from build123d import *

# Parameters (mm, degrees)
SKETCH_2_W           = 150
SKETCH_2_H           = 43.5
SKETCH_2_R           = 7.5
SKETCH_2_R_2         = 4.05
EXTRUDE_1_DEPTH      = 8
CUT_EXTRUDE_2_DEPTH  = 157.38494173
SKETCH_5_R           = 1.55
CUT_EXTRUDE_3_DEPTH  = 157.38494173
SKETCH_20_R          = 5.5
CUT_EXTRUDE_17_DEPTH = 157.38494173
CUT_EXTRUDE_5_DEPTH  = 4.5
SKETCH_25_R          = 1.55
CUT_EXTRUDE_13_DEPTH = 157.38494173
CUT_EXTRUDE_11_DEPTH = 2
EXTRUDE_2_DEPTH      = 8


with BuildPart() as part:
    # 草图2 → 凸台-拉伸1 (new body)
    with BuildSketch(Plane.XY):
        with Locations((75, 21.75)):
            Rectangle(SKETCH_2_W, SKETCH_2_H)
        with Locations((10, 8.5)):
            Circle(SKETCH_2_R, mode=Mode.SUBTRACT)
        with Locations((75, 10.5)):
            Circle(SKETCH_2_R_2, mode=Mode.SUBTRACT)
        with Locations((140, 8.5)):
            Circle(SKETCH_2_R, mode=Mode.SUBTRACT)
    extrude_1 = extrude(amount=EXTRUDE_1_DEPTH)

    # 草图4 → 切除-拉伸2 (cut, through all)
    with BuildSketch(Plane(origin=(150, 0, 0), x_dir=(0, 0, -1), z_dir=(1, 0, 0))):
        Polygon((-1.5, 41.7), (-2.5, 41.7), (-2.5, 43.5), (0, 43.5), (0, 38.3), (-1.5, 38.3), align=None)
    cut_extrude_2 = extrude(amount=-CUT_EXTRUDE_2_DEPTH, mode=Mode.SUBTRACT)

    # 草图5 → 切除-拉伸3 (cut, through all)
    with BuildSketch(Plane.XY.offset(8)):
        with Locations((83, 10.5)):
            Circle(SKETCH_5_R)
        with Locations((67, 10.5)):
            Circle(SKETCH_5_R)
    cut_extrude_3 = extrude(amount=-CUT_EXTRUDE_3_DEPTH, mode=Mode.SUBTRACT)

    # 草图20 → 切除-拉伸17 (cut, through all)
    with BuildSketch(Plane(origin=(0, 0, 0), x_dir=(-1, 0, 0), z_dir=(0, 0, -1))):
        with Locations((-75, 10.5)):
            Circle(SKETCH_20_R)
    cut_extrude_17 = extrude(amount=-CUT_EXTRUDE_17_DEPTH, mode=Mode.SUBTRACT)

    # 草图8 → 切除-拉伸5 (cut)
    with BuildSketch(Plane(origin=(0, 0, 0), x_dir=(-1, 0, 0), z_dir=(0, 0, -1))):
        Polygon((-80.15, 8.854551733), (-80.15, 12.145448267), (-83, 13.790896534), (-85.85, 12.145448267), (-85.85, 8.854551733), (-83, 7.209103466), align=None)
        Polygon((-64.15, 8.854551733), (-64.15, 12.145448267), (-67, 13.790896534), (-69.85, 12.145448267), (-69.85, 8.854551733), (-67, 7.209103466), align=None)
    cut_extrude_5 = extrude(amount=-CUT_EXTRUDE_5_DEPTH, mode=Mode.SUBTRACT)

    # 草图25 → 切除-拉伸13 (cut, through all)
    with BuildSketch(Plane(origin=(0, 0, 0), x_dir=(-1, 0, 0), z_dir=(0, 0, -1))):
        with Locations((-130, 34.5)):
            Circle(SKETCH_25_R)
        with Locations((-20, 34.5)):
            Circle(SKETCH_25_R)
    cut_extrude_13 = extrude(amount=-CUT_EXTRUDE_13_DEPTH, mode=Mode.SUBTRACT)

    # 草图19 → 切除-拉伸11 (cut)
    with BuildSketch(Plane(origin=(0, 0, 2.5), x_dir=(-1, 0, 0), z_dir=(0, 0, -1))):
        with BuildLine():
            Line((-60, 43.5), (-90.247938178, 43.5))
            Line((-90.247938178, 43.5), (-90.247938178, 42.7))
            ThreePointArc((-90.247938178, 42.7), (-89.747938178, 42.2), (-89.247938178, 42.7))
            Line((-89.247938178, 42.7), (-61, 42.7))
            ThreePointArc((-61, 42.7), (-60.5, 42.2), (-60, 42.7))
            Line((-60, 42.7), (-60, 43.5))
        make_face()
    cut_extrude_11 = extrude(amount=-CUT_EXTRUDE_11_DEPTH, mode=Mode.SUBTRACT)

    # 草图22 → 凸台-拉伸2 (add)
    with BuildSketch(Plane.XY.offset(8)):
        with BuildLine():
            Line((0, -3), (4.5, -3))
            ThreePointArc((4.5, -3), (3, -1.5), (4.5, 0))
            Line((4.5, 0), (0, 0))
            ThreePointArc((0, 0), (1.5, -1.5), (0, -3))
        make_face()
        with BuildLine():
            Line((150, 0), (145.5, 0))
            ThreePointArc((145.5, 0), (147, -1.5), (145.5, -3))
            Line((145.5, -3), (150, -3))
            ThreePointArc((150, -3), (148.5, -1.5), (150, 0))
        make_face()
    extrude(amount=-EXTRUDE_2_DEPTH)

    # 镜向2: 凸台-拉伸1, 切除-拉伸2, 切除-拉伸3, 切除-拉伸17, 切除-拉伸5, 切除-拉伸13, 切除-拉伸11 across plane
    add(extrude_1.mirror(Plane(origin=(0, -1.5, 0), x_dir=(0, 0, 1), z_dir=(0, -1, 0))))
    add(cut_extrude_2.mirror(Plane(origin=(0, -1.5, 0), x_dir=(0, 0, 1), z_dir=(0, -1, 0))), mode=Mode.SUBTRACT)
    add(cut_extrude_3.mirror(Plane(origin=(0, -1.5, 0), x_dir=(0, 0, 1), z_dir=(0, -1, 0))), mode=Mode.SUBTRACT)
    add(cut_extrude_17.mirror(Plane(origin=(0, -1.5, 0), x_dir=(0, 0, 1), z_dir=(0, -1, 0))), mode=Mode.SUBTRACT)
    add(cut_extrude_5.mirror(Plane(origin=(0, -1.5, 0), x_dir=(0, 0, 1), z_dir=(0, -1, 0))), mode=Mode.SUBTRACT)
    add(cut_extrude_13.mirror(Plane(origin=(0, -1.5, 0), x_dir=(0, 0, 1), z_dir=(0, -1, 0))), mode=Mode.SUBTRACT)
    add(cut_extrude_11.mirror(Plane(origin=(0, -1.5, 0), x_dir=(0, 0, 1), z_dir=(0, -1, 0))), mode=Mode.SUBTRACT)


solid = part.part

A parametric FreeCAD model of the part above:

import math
import FreeCAD as App
import Part
import Sketcher
from FreeCAD import Vector
Q = App.Units.Quantity

doc = App.newDocument("Part")
body = doc.addObject("PartDesign::Body", "Body")

sketch1 = doc.addObject("Sketcher::SketchObject", "Sketch")
body.addObject(sketch1)
sketch1.AttachmentSupport = (doc.XY_Plane, [""])
sketch1.MapMode = "FlatFace"
sketch1.addGeometry([
    Part.LineSegment(Vector(0, 43.5, 0), Vector(0, 0, 0)),
    Part.LineSegment(Vector(0, 0, 0), Vector(150, 0, 0)),
    Part.LineSegment(Vector(150, 0, 0), Vector(150, 43.5, 0)),
    Part.LineSegment(Vector(150, 43.5, 0), Vector(0, 43.5, 0)),
    Part.Circle(Vector(10, 8.5, 0), Vector(0, 0, 1), 7.5),
    Part.Circle(Vector(75, 10.5, 0), Vector(0, 0, 1), 4.05),
    Part.Circle(Vector(140, 8.5, 0), Vector(0, 0, 1), 7.5),
], False)
sketch1.addConstraint([
    Sketcher.Constraint("Coincident", 0, 2, 1, 1),
    Sketcher.Constraint("Coincident", 1, 2, 2, 1),
    Sketcher.Constraint("Coincident", 2, 2, 3, 1),
    Sketcher.Constraint("Coincident", 3, 2, 0, 1),
    Sketcher.Constraint("Vertical", 0),
    Sketcher.Constraint("Horizontal", 1),
    Sketcher.Constraint("Vertical", 2),
    Sketcher.Constraint("Horizontal", 3),
    Sketcher.Constraint("Coincident", 0, 2, -1, 1),
    Sketcher.Constraint("Equal", 4, 6),
    Sketcher.Constraint("Horizontal", 4, 3, 6, 3),
    Sketcher.Constraint("Diameter", 4, 15.0),
    Sketcher.Constraint("Diameter", 5, 8.1),
    Sketcher.Constraint("DistanceX", 1, 1, 1, 2, 150.0),
    Sketcher.Constraint("DistanceY", 0, 2, 0, 1, 43.5),
    Sketcher.Constraint("DistanceX", -1, 1, 4, 3, 10.0),
    Sketcher.Constraint("DistanceX", -1, 1, 5, 3, 75.0),
    Sketcher.Constraint("DistanceX", -1, 1, 6, 3, 140.0),
    Sketcher.Constraint("DistanceY", 4, 3, 5, 3, 2.0),
    Sketcher.Constraint("DistanceY", 6, 3, 2, 2, 35.0),
])
pad1 = doc.addObject("PartDesign::Pad", "Pad")
body.addObject(pad1)
pad1.Profile = sketch1
pad1.Length = 8

sketch2 = doc.addObject("Sketcher::SketchObject", "Sketch001")
body.addObject(sketch2)
sketch2.AttachmentSupport = (doc.YZ_Plane, [""])
sketch2.MapMode = "FlatFace"
sketch2.AttachmentOffset = App.Placement(Vector(0, 0, 150), App.Rotation())
sketch2.addGeometry([
    Part.LineSegment(Vector(41.7, 2.5, 0), Vector(41.7, 1.5, 0)),
    Part.LineSegment(Vector(41.7, 1.5, 0), Vector(38.3, 1.5, 0)),
    Part.LineSegment(Vector(38.3, 1.5, 0), Vector(38.3, 0, 0)),
    Part.LineSegment(Vector(38.3, 0, 0), Vector(43.5, 0, 0)),
    Part.LineSegment(Vector(43.5, 0, 0), Vector(43.5, 2.5, 0)),
    Part.LineSegment(Vector(43.5, 2.5, 0), Vector(41.7, 2.5, 0)),
], False)
sketch2.addConstraint([
    Sketcher.Constraint("Coincident", 0, 2, 1, 1),
    Sketcher.Constraint("Coincident", 1, 2, 2, 1),
    Sketcher.Constraint("Coincident", 2, 2, 3, 1),
    Sketcher.Constraint("Coincident", 3, 2, 4, 1),
    Sketcher.Constraint("Coincident", 4, 2, 5, 1),
    Sketcher.Constraint("Coincident", 5, 2, 0, 1),
    Sketcher.Constraint("Vertical", 0),
    Sketcher.Constraint("Horizontal", 1),
    Sketcher.Constraint("Vertical", 2),
    Sketcher.Constraint("Horizontal", 3),
    Sketcher.Constraint("Vertical", 4),
    Sketcher.Constraint("Horizontal", 5),
    Sketcher.Constraint("PointOnObject", 2, 2, -1),
    Sketcher.Constraint("DistanceY", 0, 2, 0, 1, 1.0),
    Sketcher.Constraint("DistanceX", 1, 2, 1, 1, 3.4),
    Sketcher.Constraint("DistanceX", 3, 1, 3, 2, 5.2),
    Sketcher.Constraint("DistanceY", 2, 2, 2, 1, 1.5),
    Sketcher.Constraint("DistanceX", -1, 1, 0, 2, 41.7),
])
pocket1 = doc.addObject("PartDesign::Pocket", "Pocket")
body.addObject(pocket1)
pocket1.Profile = sketch2
pocket1.Type = "ThroughAll"

sketch3 = doc.addObject("Sketcher::SketchObject", "Sketch002")
body.addObject(sketch3)
sketch3.AttachmentSupport = (doc.XY_Plane, [""])
sketch3.MapMode = "FlatFace"
sketch3.AttachmentOffset = App.Placement(Vector(0, 0, 8), App.Rotation())
sketch3.addGeometry([
    Part.Circle(Vector(83, 10.5, 0), Vector(0, 0, 1), 1.55),
    Part.Circle(Vector(67, 10.5, 0), Vector(0, 0, 1), 1.55),
], False)
sketch3.addConstraint([
    Sketcher.Constraint("Equal", 0, 1),
    Sketcher.Constraint("Horizontal", 0, 3, 1, 3),
    Sketcher.Constraint("Diameter", 0, 3.1),
    Sketcher.Constraint("DistanceX", -1, 1, 0, 3, 83.0),
    Sketcher.Constraint("DistanceX", -1, 1, 1, 3, 67.0),
    Sketcher.Constraint("DistanceY", -1, 1, 0, 3, 10.5),
])
pocket2 = doc.addObject("PartDesign::Pocket", "Pocket001")
body.addObject(pocket2)
pocket2.Profile = sketch3
pocket2.Type = "ThroughAll"

sketch4 = doc.addObject("Sketcher::SketchObject", "Sketch003")
body.addObject(sketch4)
sketch4.AttachmentSupport = (doc.XY_Plane, [""])
sketch4.MapMode = "FlatFace"
sketch4.addGeometry(Part.Circle(Vector(75, 10.5, 0), Vector(0, 0, 1), 5.5), False)
sketch4.addConstraint([
    Sketcher.Constraint("Diameter", 0, 11.0),
    Sketcher.Constraint("DistanceX", -1, 1, 0, 3, 75.0),
    Sketcher.Constraint("DistanceY", -1, 1, 0, 3, 10.5),
])
pocket3 = doc.addObject("PartDesign::Pocket", "Pocket002")
body.addObject(pocket3)
pocket3.Profile = sketch4
pocket3.Type = "ThroughAll"
pocket3.Reversed = True

sketch5 = doc.addObject("Sketcher::SketchObject", "Sketch004")
body.addObject(sketch5)
sketch5.AttachmentSupport = (doc.XY_Plane, [""])
sketch5.MapMode = "FlatFace"
sketch5.addGeometry([
    Part.LineSegment(Vector(80.15, 8.854552, 0), Vector(80.15, 12.145448, 0)),
    Part.LineSegment(Vector(80.15, 12.145448, 0), Vector(83, 13.790897, 0)),
    Part.LineSegment(Vector(83, 13.790897, 0), Vector(85.85, 12.145448, 0)),
    Part.LineSegment(Vector(85.85, 12.145448, 0), Vector(85.85, 8.854552, 0)),
    Part.LineSegment(Vector(85.85, 8.854552, 0), Vector(83, 7.209103, 0)),
    Part.LineSegment(Vector(83, 7.209103, 0), Vector(80.15, 8.854552, 0)),
    Part.LineSegment(Vector(64.15, 8.854552, 0), Vector(64.15, 12.145448, 0)),
    Part.LineSegment(Vector(64.15, 12.145448, 0), Vector(67, 13.790897, 0)),
    Part.LineSegment(Vector(67, 13.790897, 0), Vector(69.85, 12.145448, 0)),
    Part.LineSegment(Vector(69.85, 12.145448, 0), Vector(69.85, 8.854552, 0)),
    Part.LineSegment(Vector(69.85, 8.854552, 0), Vector(67, 7.209103, 0)),
    Part.LineSegment(Vector(67, 7.209103, 0), Vector(64.15, 8.854552, 0)),
], False)
sketch5.addConstraint([
    Sketcher.Constraint("Coincident", 0, 2, 1, 1),
    Sketcher.Constraint("Coincident", 1, 2, 2, 1),
    Sketcher.Constraint("Coincident", 2, 2, 3, 1),
    Sketcher.Constraint("Coincident", 3, 2, 4, 1),
    Sketcher.Constraint("Coincident", 4, 2, 5, 1),
    Sketcher.Constraint("Coincident", 5, 2, 0, 1),
    Sketcher.Constraint("Coincident", 6, 2, 7, 1),
    Sketcher.Constraint("Coincident", 7, 2, 8, 1),
    Sketcher.Constraint("Coincident", 8, 2, 9, 1),
    Sketcher.Constraint("Coincident", 9, 2, 10, 1),
    Sketcher.Constraint("Coincident", 10, 2, 11, 1),
    Sketcher.Constraint("Coincident", 11, 2, 6, 1),
    Sketcher.Constraint("Vertical", 0),
    Sketcher.Constraint("Vertical", 3),
    Sketcher.Constraint("Vertical", 6),
    Sketcher.Constraint("Vertical", 9),
    Sketcher.Constraint("Parallel", 1, 4),
    Sketcher.Constraint("Parallel", 2, 5),
    Sketcher.Constraint("Parallel", 4, 7),
    Sketcher.Constraint("Parallel", 5, 8),
    Sketcher.Constraint("Parallel", 7, 10),
    Sketcher.Constraint("Parallel", 8, 11),
    Sketcher.Constraint("Horizontal", 0, 2, 2, 2),
    Sketcher.Constraint("Horizontal", 3, 2, 5, 2),
    Sketcher.Constraint("Horizontal", 2, 2, 6, 2),
    Sketcher.Constraint("Horizontal", 1, 2, 7, 2),
    Sketcher.Constraint("Horizontal", 6, 2, 8, 2),
    Sketcher.Constraint("Horizontal", 5, 2, 9, 2),
    Sketcher.Constraint("Horizontal", 4, 2, 10, 2),
    Sketcher.Constraint("Vertical", 1, 2, 4, 2),
    Sketcher.Constraint("Angle", 1, Q("30 deg")),
    Sketcher.Constraint("DistanceX", -1, 1, 1, 2, 83.0),
    Sketcher.Constraint("DistanceX", -1, 1, 7, 2, 67.0),
    Sketcher.Constraint("DistanceX", 0, 2, 2, 2, 5.7),
    Sketcher.Constraint("DistanceY", 0, 1, 0, 2, 3.290897),
    Sketcher.Constraint("DistanceY", -1, 1, 0, 2, 12.145448),
])
pocket4 = doc.addObject("PartDesign::Pocket", "Pocket003")
body.addObject(pocket4)
pocket4.Profile = sketch5
pocket4.Length = 4.5
pocket4.Reversed = True

sketch6 = doc.addObject("Sketcher::SketchObject", "Sketch005")
body.addObject(sketch6)
sketch6.AttachmentSupport = (doc.XY_Plane, [""])
sketch6.MapMode = "FlatFace"
sketch6.addGeometry([
    Part.Circle(Vector(130, 34.5, 0), Vector(0, 0, 1), 1.55),
    Part.Circle(Vector(20, 34.5, 0), Vector(0, 0, 1), 1.55),
], False)
sketch6.addConstraint([
    Sketcher.Constraint("Equal", 0, 1),
    Sketcher.Constraint("Horizontal", 0, 3, 1, 3),
    Sketcher.Constraint("Diameter", 0, 3.1),
    Sketcher.Constraint("DistanceX", -1, 1, 0, 3, 130.0),
    Sketcher.Constraint("DistanceX", -1, 1, 1, 3, 20.0),
    Sketcher.Constraint("DistanceY", -1, 1, 0, 3, 34.5),
])
pocket5 = doc.addObject("PartDesign::Pocket", "Pocket004")
body.addObject(pocket5)
pocket5.Profile = sketch6
pocket5.Type = "ThroughAll"
pocket5.Reversed = True

sketch7 = doc.addObject("Sketcher::SketchObject", "Sketch006")
body.addObject(sketch7)
sketch7.AttachmentSupport = (doc.XY_Plane, [""])
sketch7.MapMode = "FlatFace"
sketch7.AttachmentOffset = App.Placement(Vector(0, 0, 2.5), App.Rotation())
sketch7.addGeometry([
    Part.LineSegment(Vector(60, 43.5, 0), Vector(90.247938, 43.5, 0)),
    Part.LineSegment(Vector(90.247938, 43.5, 0), Vector(90.247938, 42.7, 0)),
    Part.ArcOfCircle(Part.Circle(Vector(89.747938, 42.7, 0), Vector(0, 0, 1), 0.5), math.radians(180), math.radians(360)),
    Part.LineSegment(Vector(89.247938, 42.7, 0), Vector(61, 42.7, 0)),
    Part.ArcOfCircle(Part.Circle(Vector(60.5, 42.7, 0), Vector(0, 0, 1), 0.5), math.radians(180), math.radians(360)),
    Part.LineSegment(Vector(60, 42.7, 0), Vector(60, 43.5, 0)),
], False)
sketch7.addConstraint([
    Sketcher.Constraint("Coincident", 0, 2, 1, 1),
    Sketcher.Constraint("Tangent", 1, 2, 2, 2),
    Sketcher.Constraint("Coincident", 2, 1, 3, 1),
    Sketcher.Constraint("Coincident", 3, 2, 4, 2),
    Sketcher.Constraint("Tangent", 4, 1, 5, 1),
    Sketcher.Constraint("Coincident", 5, 2, 0, 1),
    Sketcher.Constraint("Horizontal", 0),
    Sketcher.Constraint("Vertical", 1),
    Sketcher.Constraint("Horizontal", 3),
    Sketcher.Constraint("Vertical", 5),
    Sketcher.Constraint("Equal", 2, 4),
    Sketcher.Constraint("Horizontal", 2, 3, 4, 3),
    Sketcher.Constraint("Horizontal", 1, 2, 2, 1),
    Sketcher.Constraint("Radius", 2, 0.5),
    Sketcher.Constraint("DistanceY", 1, 2, 1, 1, 0.8),
    Sketcher.Constraint("DistanceX", -1, 1, 3, 2, 61.0),
    Sketcher.Constraint("DistanceY", -1, 1, 2, 3, 42.7),
    Sketcher.Constraint("DistanceX", 0, 1, 0, 2, 30.247938),
])
pocket6 = doc.addObject("PartDesign::Pocket", "Pocket005")
body.addObject(pocket6)
pocket6.Profile = sketch7
pocket6.Length = 2
pocket6.Reversed = True

sketch8 = doc.addObject("Sketcher::SketchObject", "Sketch007")
body.addObject(sketch8)
sketch8.AttachmentSupport = (doc.XY_Plane, [""])
sketch8.MapMode = "FlatFace"
sketch8.AttachmentOffset = App.Placement(Vector(0, 0, 8), App.Rotation())
sketch8.addGeometry([
    Part.LineSegment(Vector(0, -3, 0), Vector(4.5, -3, 0)),
    Part.ArcOfCircle(Part.Circle(Vector(4.5, -1.5, 0), Vector(0, 0, 1), 1.5), math.radians(90), math.radians(270)),
    Part.LineSegment(Vector(4.5, 0, 0), Vector(0, 0, 0)),
    Part.ArcOfCircle(Part.Circle(Vector(0, -1.5, 0), Vector(0, 0, 1), 1.5), math.radians(-90), math.radians(90)),
    Part.LineSegment(Vector(150, 0, 0), Vector(145.5, 0, 0)),
    Part.ArcOfCircle(Part.Circle(Vector(145.5, -1.5, 0), Vector(0, 0, 1), 1.5), math.radians(-90), math.radians(90)),
    Part.LineSegment(Vector(145.5, -3, 0), Vector(150, -3, 0)),
    Part.ArcOfCircle(Part.Circle(Vector(150, -1.5, 0), Vector(0, 0, 1), 1.5), math.radians(90), math.radians(270)),
], False)
sketch8.addConstraint([
    Sketcher.Constraint("Tangent", 0, 2, 1, 2),
    Sketcher.Constraint("Tangent", 1, 1, 2, 1),
    Sketcher.Constraint("Tangent", 2, 2, 3, 2),
    Sketcher.Constraint("Tangent", 3, 1, 0, 1),
    Sketcher.Constraint("Tangent", 4, 2, 5, 2),
    Sketcher.Constraint("Tangent", 5, 1, 6, 1),
    Sketcher.Constraint("Tangent", 6, 2, 7, 2),
    Sketcher.Constraint("Tangent", 7, 1, 4, 1),
    Sketcher.Constraint("Horizontal", 0),
    Sketcher.Constraint("Horizontal", 2),
    Sketcher.Constraint("Horizontal", 4),
    Sketcher.Constraint("Horizontal", 6),
    Sketcher.Constraint("Coincident", 2, 2, -1, 1),
    Sketcher.Constraint("Equal", 3, 5),
    Sketcher.Constraint("PointOnObject", 4, 2, -1),
    Sketcher.Constraint("Equal", 2, 4),
    Sketcher.Constraint("Radius", 1, 1.5),
    Sketcher.Constraint("DistanceX", 0, 1, 0, 2, 4.5),
    Sketcher.Constraint("DistanceX", -1, 1, 7, 3, 150.0),
])
pad2 = doc.addObject("PartDesign::Pad", "Pad001")
body.addObject(pad2)
pad2.Profile = sketch8
pad2.Length = 8
pad2.Reversed = True
doc.recompute()

datumplane = doc.addObject("PartDesign::Plane", "DatumPlane")
body.addObject(datumplane)
datumplane.AttachmentSupport = (doc.XZ_Plane, [""])
datumplane.MapMode = "FlatFace"
datumplane.AttachmentOffset = App.Placement(Vector(0, 0, 1.5), App.Rotation())
mirrored = doc.addObject("PartDesign::Mirrored", "Mirrored")
body.addObject(mirrored)
mirrored.Originals = [pad1, pocket1, pocket2, pocket3, pocket4, pocket5, pocket6]
mirrored.MirrorPlane = (datumplane, [""])
body.Tip = mirrored

doc.recompute()
